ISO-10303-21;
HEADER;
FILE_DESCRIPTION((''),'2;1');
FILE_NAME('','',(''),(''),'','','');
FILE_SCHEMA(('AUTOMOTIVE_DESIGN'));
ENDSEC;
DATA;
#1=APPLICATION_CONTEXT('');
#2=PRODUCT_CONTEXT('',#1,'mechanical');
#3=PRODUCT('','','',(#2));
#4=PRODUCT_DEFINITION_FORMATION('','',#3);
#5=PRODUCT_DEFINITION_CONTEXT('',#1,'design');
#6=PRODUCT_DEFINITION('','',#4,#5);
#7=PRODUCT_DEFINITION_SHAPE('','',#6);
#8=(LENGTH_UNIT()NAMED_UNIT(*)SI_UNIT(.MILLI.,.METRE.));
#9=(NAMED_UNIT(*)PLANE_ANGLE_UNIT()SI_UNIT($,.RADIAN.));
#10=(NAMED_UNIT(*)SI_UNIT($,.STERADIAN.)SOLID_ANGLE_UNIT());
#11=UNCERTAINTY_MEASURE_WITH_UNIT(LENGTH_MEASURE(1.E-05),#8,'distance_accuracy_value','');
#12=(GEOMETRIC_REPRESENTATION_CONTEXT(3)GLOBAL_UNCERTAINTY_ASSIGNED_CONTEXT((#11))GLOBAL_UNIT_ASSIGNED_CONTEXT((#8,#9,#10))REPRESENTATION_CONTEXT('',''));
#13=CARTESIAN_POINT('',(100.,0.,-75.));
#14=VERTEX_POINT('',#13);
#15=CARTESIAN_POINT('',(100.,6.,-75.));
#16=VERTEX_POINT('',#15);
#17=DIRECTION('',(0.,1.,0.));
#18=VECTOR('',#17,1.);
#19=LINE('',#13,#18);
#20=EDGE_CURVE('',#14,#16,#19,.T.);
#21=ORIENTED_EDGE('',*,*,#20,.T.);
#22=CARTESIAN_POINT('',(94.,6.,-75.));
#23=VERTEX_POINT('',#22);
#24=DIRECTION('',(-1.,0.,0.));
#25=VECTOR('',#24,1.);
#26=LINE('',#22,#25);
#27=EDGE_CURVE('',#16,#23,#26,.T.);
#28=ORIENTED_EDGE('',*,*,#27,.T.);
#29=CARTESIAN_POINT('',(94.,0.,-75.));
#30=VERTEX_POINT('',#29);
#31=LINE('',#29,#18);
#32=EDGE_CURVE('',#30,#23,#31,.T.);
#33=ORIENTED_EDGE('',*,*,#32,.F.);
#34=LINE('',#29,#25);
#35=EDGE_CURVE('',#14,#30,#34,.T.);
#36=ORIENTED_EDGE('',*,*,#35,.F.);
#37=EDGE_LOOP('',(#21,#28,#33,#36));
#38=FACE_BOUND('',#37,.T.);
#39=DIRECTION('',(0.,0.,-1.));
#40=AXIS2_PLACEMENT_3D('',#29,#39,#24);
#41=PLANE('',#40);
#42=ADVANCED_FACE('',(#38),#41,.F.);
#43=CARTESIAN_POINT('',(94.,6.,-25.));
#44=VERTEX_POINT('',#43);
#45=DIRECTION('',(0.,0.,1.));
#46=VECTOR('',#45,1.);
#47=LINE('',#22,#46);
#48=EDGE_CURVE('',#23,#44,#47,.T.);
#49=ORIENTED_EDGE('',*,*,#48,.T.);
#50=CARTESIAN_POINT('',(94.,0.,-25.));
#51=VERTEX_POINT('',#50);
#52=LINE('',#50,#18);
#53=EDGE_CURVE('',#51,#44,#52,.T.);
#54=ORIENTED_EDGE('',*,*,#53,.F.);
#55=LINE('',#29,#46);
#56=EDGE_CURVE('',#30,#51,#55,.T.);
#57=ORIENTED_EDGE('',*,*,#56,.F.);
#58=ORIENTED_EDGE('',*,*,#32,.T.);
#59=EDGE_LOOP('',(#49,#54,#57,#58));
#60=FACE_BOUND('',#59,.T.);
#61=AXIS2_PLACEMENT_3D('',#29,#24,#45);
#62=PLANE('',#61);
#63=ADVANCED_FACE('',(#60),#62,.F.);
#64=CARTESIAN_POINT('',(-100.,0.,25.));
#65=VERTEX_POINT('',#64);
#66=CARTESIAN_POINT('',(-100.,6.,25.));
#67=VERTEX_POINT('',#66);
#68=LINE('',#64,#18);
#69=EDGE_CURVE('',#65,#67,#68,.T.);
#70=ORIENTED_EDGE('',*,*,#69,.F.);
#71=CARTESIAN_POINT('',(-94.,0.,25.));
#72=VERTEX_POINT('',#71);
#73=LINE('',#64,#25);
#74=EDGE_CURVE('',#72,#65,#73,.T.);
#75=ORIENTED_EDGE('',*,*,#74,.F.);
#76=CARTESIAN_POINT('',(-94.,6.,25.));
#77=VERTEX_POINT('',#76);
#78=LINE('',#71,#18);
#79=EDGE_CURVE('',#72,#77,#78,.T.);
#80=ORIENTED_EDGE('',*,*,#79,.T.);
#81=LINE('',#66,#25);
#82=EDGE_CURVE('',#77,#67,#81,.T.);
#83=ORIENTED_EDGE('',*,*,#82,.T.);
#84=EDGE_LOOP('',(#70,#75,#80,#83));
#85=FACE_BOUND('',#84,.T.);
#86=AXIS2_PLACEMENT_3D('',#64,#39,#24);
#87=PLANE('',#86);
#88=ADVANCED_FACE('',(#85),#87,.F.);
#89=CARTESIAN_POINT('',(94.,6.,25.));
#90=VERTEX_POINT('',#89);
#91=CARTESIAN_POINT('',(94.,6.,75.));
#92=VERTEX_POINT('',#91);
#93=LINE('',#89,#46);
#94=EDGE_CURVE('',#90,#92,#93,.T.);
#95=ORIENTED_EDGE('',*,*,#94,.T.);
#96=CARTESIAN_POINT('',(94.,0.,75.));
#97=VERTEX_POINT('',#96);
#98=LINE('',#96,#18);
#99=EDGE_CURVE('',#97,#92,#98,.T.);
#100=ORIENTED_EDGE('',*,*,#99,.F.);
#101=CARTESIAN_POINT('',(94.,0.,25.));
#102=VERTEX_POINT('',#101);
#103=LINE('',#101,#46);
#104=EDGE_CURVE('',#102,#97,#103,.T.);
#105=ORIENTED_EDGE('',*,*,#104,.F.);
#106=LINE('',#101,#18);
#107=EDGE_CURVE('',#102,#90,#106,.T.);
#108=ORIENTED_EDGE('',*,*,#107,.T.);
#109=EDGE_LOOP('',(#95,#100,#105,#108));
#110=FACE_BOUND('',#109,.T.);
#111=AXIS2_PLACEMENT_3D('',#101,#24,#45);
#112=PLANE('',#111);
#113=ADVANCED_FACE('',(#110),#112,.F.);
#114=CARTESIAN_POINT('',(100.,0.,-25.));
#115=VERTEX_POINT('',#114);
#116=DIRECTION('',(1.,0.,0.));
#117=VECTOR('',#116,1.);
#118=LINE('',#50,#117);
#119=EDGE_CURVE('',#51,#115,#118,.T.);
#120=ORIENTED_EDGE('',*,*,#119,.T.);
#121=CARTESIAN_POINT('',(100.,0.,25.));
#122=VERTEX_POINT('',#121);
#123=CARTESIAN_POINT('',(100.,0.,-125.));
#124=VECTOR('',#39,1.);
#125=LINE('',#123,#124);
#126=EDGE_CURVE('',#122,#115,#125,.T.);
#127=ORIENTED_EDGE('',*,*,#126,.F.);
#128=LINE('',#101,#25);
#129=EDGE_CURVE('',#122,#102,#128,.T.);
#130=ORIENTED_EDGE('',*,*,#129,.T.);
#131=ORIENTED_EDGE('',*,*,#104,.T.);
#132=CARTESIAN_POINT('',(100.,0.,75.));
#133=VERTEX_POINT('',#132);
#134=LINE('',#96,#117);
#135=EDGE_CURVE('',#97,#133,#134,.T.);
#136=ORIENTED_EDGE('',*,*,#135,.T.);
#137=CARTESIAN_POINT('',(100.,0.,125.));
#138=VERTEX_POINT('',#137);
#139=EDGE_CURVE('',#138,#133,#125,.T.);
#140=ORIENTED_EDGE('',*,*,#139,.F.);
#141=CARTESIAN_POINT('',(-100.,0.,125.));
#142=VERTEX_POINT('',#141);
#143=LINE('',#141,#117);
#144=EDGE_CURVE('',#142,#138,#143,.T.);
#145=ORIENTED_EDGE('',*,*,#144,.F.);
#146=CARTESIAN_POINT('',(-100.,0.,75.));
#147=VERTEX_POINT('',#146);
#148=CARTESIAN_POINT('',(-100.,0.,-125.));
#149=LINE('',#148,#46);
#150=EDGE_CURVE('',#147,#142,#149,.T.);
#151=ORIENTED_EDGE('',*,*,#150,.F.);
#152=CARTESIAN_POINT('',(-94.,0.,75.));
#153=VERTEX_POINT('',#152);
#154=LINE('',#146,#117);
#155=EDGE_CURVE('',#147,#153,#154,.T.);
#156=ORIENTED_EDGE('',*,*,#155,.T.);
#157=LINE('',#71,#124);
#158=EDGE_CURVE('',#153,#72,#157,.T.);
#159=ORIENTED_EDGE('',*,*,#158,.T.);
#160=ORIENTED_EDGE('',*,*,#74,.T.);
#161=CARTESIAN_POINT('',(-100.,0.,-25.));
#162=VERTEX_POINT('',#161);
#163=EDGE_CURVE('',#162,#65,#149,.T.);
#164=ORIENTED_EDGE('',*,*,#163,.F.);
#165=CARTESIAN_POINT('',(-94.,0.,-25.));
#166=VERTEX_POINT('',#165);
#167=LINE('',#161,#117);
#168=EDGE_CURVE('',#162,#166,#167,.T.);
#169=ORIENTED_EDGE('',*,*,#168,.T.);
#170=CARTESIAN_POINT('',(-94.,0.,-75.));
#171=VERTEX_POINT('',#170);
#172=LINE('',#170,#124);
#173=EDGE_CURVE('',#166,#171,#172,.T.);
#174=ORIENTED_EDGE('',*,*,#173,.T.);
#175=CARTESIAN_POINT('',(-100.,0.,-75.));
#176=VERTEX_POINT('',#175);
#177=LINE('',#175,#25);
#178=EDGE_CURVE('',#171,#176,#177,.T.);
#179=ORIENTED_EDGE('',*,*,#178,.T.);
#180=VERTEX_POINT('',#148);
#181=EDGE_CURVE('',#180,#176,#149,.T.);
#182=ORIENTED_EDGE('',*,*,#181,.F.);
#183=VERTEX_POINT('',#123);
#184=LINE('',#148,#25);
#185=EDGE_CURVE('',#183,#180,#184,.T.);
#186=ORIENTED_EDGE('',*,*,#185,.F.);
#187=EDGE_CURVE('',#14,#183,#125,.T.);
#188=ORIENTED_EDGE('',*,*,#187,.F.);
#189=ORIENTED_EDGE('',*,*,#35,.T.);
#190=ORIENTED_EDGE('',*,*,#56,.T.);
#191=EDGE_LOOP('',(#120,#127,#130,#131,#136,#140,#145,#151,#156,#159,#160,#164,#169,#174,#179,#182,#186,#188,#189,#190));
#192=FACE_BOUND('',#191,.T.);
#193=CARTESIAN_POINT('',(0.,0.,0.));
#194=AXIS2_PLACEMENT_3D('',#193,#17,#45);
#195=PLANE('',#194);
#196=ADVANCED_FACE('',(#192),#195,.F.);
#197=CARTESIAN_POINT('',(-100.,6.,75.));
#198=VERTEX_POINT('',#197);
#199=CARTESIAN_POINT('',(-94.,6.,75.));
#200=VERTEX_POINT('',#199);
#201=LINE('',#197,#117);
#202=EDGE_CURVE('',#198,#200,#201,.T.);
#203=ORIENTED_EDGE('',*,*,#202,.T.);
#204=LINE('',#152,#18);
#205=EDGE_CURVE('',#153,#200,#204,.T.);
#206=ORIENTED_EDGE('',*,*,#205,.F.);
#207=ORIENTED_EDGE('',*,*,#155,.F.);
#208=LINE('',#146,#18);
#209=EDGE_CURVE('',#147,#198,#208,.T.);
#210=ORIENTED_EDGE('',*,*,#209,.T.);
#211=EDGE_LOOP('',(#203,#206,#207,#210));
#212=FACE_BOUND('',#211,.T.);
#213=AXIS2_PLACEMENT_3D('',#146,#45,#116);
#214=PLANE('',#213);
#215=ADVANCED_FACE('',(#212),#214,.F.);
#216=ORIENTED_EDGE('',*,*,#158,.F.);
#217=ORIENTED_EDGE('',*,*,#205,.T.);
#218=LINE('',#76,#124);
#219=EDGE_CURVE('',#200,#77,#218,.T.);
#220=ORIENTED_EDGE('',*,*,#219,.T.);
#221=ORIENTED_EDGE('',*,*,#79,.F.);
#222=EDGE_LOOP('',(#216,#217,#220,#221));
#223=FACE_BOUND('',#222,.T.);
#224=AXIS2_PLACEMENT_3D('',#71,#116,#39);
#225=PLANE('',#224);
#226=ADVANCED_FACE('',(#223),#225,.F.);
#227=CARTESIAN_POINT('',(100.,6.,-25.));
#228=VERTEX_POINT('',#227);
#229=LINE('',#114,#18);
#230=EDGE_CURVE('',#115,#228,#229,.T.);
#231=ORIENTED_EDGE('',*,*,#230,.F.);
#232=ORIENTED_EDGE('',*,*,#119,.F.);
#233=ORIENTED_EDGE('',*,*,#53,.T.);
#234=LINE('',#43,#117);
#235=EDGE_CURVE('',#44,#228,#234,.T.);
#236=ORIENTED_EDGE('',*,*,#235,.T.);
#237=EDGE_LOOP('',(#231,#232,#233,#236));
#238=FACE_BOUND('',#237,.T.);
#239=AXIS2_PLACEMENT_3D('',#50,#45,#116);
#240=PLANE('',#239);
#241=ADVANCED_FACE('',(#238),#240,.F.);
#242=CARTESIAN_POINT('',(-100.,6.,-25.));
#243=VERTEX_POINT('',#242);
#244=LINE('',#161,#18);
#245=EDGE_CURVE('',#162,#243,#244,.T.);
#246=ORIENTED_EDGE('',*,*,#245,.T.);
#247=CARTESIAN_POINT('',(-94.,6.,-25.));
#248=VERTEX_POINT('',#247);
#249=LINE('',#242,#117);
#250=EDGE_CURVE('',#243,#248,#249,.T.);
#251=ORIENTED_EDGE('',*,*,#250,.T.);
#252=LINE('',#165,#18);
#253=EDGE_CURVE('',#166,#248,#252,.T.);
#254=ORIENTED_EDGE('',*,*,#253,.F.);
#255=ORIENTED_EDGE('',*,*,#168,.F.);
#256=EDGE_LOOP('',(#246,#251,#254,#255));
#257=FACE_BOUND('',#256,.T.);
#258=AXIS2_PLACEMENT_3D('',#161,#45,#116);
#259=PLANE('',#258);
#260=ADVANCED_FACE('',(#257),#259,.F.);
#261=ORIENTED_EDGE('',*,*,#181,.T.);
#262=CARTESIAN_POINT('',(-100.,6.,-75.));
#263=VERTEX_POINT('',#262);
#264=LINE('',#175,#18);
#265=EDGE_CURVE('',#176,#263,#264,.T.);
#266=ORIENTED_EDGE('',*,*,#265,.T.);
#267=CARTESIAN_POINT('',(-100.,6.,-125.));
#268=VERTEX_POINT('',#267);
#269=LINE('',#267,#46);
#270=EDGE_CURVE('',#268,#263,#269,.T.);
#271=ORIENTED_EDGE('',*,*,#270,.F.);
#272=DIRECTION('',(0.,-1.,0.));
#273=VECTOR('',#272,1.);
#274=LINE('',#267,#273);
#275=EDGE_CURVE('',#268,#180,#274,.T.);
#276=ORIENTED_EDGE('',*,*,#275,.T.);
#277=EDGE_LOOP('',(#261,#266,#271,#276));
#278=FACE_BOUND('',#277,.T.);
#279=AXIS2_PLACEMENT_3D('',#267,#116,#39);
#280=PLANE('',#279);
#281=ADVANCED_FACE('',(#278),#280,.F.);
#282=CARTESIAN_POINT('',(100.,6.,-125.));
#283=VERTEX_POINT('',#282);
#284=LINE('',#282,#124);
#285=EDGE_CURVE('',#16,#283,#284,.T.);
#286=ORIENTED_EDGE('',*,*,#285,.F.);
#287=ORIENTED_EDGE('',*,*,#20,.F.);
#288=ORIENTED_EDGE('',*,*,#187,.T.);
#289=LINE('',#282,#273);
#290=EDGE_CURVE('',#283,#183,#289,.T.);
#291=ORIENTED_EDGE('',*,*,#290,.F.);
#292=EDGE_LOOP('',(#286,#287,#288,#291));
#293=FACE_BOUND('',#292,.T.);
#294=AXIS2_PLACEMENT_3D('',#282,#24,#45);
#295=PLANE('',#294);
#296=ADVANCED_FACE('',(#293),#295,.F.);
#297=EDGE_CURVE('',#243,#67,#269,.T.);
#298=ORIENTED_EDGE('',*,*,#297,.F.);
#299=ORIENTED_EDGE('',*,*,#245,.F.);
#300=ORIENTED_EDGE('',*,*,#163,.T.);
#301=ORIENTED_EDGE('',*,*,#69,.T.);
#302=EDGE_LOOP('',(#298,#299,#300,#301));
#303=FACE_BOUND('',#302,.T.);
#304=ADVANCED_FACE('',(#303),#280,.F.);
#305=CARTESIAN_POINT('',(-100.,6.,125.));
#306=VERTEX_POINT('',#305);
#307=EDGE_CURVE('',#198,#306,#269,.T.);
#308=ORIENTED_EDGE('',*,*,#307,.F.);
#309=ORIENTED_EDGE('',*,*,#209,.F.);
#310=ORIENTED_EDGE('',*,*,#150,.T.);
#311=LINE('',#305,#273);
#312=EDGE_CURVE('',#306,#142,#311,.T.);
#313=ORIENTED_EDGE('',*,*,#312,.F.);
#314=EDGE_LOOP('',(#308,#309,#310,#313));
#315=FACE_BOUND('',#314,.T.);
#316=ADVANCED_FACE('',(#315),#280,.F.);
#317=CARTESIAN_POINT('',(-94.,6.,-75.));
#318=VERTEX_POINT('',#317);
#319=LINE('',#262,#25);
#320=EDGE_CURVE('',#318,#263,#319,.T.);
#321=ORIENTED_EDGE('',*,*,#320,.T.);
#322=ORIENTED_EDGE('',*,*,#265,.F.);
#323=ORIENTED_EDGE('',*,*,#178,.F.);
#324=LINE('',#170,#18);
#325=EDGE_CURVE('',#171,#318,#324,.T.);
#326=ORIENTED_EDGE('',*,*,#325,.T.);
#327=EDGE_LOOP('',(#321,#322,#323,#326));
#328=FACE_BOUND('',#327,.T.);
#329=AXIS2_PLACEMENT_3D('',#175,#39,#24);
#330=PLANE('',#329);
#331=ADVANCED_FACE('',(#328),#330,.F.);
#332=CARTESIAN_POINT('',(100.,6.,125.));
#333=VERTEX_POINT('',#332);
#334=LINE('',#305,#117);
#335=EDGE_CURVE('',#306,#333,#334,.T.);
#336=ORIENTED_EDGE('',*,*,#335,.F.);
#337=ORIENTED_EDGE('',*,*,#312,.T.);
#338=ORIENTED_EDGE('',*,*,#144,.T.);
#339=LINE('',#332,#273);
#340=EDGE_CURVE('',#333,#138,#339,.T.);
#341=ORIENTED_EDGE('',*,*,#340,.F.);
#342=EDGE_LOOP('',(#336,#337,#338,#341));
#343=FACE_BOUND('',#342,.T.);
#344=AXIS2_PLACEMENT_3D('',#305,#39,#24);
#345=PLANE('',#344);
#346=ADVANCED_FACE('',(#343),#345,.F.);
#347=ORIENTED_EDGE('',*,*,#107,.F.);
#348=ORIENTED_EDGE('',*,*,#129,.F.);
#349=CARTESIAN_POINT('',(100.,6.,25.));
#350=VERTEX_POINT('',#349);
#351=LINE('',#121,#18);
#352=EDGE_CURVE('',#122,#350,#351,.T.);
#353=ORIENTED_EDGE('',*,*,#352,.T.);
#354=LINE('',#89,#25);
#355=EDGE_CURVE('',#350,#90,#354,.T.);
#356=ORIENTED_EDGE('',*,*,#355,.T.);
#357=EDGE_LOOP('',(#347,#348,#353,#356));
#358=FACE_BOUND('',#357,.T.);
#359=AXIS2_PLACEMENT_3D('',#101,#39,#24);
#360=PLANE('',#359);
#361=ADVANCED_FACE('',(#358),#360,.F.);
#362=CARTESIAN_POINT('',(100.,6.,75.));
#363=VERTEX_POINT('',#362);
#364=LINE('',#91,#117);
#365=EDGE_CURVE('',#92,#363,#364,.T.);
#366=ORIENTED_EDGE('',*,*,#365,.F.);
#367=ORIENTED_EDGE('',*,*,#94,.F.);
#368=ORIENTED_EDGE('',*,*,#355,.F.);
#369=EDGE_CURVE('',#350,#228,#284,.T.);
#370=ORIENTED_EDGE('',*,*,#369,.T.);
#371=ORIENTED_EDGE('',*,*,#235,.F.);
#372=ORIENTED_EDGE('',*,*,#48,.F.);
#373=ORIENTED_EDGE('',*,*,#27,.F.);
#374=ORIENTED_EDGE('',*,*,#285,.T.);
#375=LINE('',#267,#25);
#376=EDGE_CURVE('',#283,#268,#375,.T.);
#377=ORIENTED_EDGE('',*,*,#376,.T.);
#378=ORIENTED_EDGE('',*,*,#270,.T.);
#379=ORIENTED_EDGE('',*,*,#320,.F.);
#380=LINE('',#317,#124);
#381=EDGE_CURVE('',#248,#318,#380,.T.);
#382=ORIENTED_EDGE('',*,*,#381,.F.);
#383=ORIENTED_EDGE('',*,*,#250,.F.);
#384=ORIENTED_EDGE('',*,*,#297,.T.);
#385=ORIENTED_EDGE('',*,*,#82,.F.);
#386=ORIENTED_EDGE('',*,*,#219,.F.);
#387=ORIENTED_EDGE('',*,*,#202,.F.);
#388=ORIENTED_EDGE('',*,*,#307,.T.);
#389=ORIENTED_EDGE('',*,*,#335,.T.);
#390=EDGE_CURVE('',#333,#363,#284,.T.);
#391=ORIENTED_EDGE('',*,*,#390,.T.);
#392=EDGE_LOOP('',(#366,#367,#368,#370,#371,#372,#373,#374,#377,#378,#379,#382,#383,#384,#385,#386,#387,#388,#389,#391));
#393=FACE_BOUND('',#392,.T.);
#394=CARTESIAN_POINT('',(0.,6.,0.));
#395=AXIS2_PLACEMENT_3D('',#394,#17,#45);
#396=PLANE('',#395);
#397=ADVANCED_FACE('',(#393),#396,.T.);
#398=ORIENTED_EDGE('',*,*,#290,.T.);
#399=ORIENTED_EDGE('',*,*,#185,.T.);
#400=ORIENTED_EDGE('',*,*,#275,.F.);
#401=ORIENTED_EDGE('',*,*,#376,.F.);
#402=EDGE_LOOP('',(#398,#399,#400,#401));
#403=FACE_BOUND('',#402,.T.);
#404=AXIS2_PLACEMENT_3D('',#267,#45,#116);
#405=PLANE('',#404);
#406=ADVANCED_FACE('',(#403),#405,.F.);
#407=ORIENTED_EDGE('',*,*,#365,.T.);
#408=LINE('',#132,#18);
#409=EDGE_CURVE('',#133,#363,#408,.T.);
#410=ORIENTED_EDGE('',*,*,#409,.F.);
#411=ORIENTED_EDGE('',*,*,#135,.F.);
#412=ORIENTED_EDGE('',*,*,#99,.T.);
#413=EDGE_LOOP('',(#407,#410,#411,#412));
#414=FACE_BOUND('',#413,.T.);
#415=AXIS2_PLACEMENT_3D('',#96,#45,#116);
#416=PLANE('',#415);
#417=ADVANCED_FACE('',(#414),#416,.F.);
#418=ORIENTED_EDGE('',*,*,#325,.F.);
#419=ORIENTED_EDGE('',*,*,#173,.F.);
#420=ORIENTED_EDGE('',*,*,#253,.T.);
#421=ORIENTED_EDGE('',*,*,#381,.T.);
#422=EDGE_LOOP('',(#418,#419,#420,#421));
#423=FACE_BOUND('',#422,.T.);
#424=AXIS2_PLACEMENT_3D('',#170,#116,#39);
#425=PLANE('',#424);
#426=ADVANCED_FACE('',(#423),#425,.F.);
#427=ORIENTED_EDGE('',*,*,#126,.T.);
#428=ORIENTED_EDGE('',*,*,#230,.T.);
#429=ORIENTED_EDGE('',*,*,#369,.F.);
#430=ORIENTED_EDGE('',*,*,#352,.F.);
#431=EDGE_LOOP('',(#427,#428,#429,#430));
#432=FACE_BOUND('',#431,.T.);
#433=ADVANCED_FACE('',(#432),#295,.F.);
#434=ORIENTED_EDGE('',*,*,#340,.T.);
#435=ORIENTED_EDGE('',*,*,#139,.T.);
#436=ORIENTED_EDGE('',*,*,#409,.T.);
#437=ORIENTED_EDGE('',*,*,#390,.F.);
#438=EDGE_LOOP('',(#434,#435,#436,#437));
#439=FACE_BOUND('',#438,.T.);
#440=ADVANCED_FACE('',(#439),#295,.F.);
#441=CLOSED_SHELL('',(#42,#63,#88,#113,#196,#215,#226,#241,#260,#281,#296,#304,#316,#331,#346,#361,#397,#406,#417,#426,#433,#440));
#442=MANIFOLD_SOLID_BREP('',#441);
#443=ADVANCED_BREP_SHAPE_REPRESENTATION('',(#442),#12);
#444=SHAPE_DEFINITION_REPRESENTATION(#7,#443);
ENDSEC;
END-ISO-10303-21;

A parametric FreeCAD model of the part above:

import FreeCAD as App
import Part
import Sketcher
Q = App.Units.Quantity

doc = App.newDocument("Part")
body = doc.addObject("PartDesign::Body", "Body")

# Sketch on XZ plane
sketch1 = body.newObject("Sketcher::SketchObject", "Sketch")
sketch1.AttachmentSupport = (doc.getObject("XZ_Plane"), [""])
sketch1.MapMode = "FlatFace"
sketch1.addGeometry([
    Part.LineSegment(App.Vector(-100, -125, 0), App.Vector(-100, 125, 0)),
    Part.LineSegment(App.Vector(-100, 125, 0), App.Vector(100, 125, 0)),
    Part.LineSegment(App.Vector(100, 125, 0), App.Vector(100, -125, 0)),
    Part.LineSegment(App.Vector(100, -125, 0), App.Vector(-100, -125, 0)),
], False)
sketch1.addConstraint([
    Sketcher.Constraint("Coincident", 0, 2, 1, 1),
    Sketcher.Constraint("Coincident", 1, 2, 2, 1),
    Sketcher.Constraint("Coincident", 2, 2, 3, 1),
    Sketcher.Constraint("Coincident", 3, 2, 0, 1),
    Sketcher.Constraint("Vertical", 0),
    Sketcher.Constraint("Horizontal", 1),
    Sketcher.Constraint("Vertical", 2),
    Sketcher.Constraint("Horizontal", 3),
    Sketcher.Constraint("Symmetric", 0, 2, 2, 2, -1, 1),
    Sketcher.Constraint("DistanceX", 1, 1, 1, 2, Q("200 mm")),
    Sketcher.Constraint("DistanceY", 0, 1, 0, 2, Q("250 mm")),
])
pad1 = body.newObject("PartDesign::Pad", "Pad")
pad1.Profile = sketch1
pad1.Length = 6
pad1.Reversed = True

# Sketch on XZ plane
sketch2 = body.newObject("Sketcher::SketchObject", "Sketch001")
sketch2.AttachmentSupport = (doc.getObject("XZ_Plane"), [""])
sketch2.MapMode = "FlatFace"
sketch2.AttachmentOffset = App.Placement(App.Vector(0, 0, -6), App.Rotation())
sketch2.addGeometry([
    Part.LineSegment(App.Vector(-100, -75, 0), App.Vector(-100, -25, 0)),  # 0
    Part.LineSegment(App.Vector(-100, -25, 0), App.Vector(-94, -25, 0)),  # 1
    Part.LineSegment(App.Vector(-94, -25, 0), App.Vector(-94, -75, 0)),  # 2
    Part.LineSegment(App.Vector(-94, -75, 0), App.Vector(-100, -75, 0)),  # 3
    Part.LineSegment(App.Vector(94, -75, 0), App.Vector(94, -25, 0)),  # 4
    Part.LineSegment(App.Vector(94, -25, 0), App.Vector(100, -25, 0)),  # 5
    Part.LineSegment(App.Vector(100, -25, 0), App.Vector(100, -75, 0)),  # 6
    Part.LineSegment(App.Vector(100, -75, 0), App.Vector(94, -75, 0)),  # 7
    Part.LineSegment(App.Vector(94, 25, 0), App.Vector(94, 75, 0)),  # 8
    Part.LineSegment(App.Vector(94, 75, 0), App.Vector(100, 75, 0)),  # 9
    Part.LineSegment(App.Vector(100, 75, 0), App.Vector(100, 25, 0)),  # 10
    Part.LineSegment(App.Vector(100, 25, 0), App.Vector(94, 25, 0)),  # 11
    Part.LineSegment(App.Vector(-100, 25, 0), App.Vector(-100, 75, 0)),  # 12
    Part.LineSegment(App.Vector(-100, 75, 0), App.Vector(-94, 75, 0)),  # 13
    Part.LineSegment(App.Vector(-94, 75, 0), App.Vector(-94, 25, 0)),  # 14
    Part.LineSegment(App.Vector(-94, 25, 0), App.Vector(-100, 25, 0)),  # 15
], False)
sketch2.addConstraint([
    Sketcher.Constraint("Coincident", 0, 2, 1, 1),
    Sketcher.Constraint("Coincident", 1, 2, 2, 1),
    Sketcher.Constraint("Coincident", 2, 2, 3, 1),
    Sketcher.Constraint("Coincident", 3, 2, 0, 1),
    Sketcher.Constraint("Coincident", 4, 2, 5, 1),
    Sketcher.Constraint("Coincident", 5, 2, 6, 1),
    Sketcher.Constraint("Coincident", 6, 2, 7, 1),
    Sketcher.Constraint("Coincident", 7, 2, 4, 1),
    Sketcher.Constraint("Coincident", 8, 2, 9, 1),
    Sketcher.Constraint("Coincident", 9, 2, 10, 1),
    Sketcher.Constraint("Coincident", 10, 2, 11, 1),
    Sketcher.Constraint("Coincident", 11, 2, 8, 1),
    Sketcher.Constraint("Coincident", 12, 2, 13, 1),
    Sketcher.Constraint("Coincident", 13, 2, 14, 1),
    Sketcher.Constraint("Coincident", 14, 2, 15, 1),
    Sketcher.Constraint("Coincident", 15, 2, 12, 1),
    Sketcher.Constraint("Vertical", 0),
    Sketcher.Constraint("Horizontal", 1),
    Sketcher.Constraint("Vertical", 2),
    Sketcher.Constraint("Horizontal", 3),
    Sketcher.Constraint("Vertical", 4),
    Sketcher.Constraint("Horizontal", 5),
    Sketcher.Constraint("Vertical", 6),
    Sketcher.Constraint("Horizontal", 7),
    Sketcher.Constraint("Vertical", 8),
    Sketcher.Constraint("Horizontal", 9),
    Sketcher.Constraint("Vertical", 10),
    Sketcher.Constraint("Horizontal", 11),
    Sketcher.Constraint("Vertical", 12),
    Sketcher.Constraint("Horizontal", 13),
    Sketcher.Constraint("Vertical", 14),
    Sketcher.Constraint("Horizontal", 15),
    Sketcher.Constraint("Symmetric", 2, 2, 8, 2, -1, 1),
    Sketcher.Constraint("Symmetric", 0, 2, 10, 2, -1, 1),
    Sketcher.Constraint("Symmetric", 6, 2, 12, 2, -1, 1),
    Sketcher.Constraint("Symmetric", 4, 2, 14, 2, -1, 1),
    Sketcher.Constraint("Symmetric", 1, 2, 4, 2, -2),
    Sketcher.Constraint("Symmetric", 3, 2, 6, 2, -2),
    Sketcher.Constraint("DistanceX", 1, 1, 1, 2, Q("6 mm")),
    Sketcher.Constraint("DistanceY", 0, 1, 0, 2, Q("50 mm")),
    Sketcher.Constraint("DistanceX", 0, 2, -1, 1, Q("100 mm")),
    Sketcher.Constraint("DistanceY", 0, 2, -1, 1, Q("25 mm")),
])
pocket1 = body.newObject("PartDesign::Pocket", "Pocket")
pocket1.Profile = sketch2
pocket1.Length = 6
pocket1.Reversed = True

doc.recompute()
